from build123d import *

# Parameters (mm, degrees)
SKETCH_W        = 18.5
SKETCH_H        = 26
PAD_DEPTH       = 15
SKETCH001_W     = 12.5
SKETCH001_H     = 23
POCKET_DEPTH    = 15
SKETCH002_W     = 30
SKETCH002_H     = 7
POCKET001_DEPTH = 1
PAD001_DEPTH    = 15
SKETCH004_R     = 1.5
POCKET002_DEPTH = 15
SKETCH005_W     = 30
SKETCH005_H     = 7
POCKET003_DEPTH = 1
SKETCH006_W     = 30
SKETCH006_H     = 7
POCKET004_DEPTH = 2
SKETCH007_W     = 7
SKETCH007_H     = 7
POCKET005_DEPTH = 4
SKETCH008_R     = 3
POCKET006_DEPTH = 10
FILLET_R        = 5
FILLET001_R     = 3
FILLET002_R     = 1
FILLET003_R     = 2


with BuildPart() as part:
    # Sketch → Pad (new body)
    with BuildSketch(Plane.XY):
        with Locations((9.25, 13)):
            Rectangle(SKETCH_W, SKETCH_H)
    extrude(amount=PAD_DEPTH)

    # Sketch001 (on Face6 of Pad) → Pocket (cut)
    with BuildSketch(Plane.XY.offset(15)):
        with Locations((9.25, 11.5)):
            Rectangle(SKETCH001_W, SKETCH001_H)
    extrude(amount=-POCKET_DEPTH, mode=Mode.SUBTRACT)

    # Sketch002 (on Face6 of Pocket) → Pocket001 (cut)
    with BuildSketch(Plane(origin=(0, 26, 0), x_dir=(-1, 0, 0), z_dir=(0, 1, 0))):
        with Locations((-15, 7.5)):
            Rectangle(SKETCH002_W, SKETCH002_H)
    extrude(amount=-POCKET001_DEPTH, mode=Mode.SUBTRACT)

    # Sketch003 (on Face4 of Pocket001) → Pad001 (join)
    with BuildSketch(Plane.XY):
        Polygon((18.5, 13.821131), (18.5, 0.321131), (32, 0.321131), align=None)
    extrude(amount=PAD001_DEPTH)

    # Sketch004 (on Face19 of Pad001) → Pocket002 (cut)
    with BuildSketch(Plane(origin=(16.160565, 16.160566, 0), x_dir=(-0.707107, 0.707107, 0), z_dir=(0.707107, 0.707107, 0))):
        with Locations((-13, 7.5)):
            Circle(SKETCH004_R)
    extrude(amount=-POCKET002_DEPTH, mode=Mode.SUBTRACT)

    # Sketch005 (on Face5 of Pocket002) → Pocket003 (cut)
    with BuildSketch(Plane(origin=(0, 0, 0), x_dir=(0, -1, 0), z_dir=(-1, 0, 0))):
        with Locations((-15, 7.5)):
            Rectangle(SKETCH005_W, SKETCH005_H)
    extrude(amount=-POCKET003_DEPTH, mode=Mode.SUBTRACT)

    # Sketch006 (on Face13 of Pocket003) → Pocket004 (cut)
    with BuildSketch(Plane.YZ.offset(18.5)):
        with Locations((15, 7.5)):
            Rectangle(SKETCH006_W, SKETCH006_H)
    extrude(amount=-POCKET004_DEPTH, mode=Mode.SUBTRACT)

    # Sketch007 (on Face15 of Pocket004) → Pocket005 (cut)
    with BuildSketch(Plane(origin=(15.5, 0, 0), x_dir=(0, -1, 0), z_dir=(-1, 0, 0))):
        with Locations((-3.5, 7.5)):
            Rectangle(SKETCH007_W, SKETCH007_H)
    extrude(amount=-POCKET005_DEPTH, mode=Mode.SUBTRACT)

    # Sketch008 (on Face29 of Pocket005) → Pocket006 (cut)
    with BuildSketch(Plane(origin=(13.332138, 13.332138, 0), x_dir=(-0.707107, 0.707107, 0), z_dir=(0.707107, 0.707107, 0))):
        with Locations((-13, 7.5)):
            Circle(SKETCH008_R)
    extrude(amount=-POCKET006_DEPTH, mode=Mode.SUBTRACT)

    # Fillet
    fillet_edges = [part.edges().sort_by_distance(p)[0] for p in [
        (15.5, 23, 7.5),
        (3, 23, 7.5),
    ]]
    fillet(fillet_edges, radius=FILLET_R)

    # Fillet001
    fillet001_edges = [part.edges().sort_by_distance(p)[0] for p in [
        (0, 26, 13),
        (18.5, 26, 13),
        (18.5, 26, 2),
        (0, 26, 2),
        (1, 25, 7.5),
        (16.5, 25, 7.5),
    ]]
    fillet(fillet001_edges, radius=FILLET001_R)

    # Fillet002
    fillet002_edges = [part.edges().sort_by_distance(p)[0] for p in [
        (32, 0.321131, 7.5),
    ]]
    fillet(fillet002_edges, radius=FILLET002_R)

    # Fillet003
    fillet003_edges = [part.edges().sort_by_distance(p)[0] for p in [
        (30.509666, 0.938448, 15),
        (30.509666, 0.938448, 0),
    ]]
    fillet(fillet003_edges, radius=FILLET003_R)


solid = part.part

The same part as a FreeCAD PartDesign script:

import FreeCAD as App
import Part
import Sketcher
from FreeCAD import Vector


def edges_at(feature, points):
    """Names of the edges that pass closest to the given points."""
    edges = feature.Shape.Edges
    near = lambda p: min(range(len(edges)), key=lambda i: edges[i].distToShape(Part.Vertex(*p))[0])
    return sorted({f"Edge{near(p) + 1}" for p in points})

doc = App.newDocument("Part")
params = doc.addObject("Spreadsheet::Sheet", "Params")
for row, (alias, value) in enumerate([
    ("sketch1_height", "26 mm"),
    ("sketch1_width", "18.5 mm"),
    ("pad1_length", "15 mm"),
    ("sketch2_height", "23 mm"),
    ("sketch2_width", "12.5 mm"),
    ("pocket1_length", "15 mm"),
    ("sketch3_width", "30 mm"),
    ("sketch3_height", "7 mm"),
    ("pocket2_length", "1 mm"),
    ("sketch4_width", "13.5 mm"),
    ("pad2_length", "15 mm"),
    ("sketch5_diameter", "3 mm"),
    ("pocket3_length", "15 mm"),
    ("sketch6_width", "30 mm"),
    ("sketch6_height", "7 mm"),
    ("pocket4_length", "1 mm"),
    ("sketch7_width", "30 mm"),
    ("sketch7_height", "7 mm"),
    ("pocket5_length", "2 mm"),
    ("sketch8_width", "7 mm"),
    ("pocket6_length", "4 mm"),
    ("sketch9_diameter", "6 mm"),
    ("pocket7_length", "10 mm"),
    ("fillet_radius", "5 mm"),
    ("fillet2_radius", "3 mm"),
    ("fillet3_radius", "1 mm"),
    ("fillet4_radius", "2 mm"),
], start=1):
    params.set(f"A{row}", alias)
    params.set(f"B{row}", "=" + value)
    params.setAlias(f"B{row}", alias)

body = doc.addObject("PartDesign::Body", "Body")

sketch1 = doc.addObject("Sketcher::SketchObject", "Sketch")
body.addObject(sketch1)
sketch1.AttachmentSupport = (doc.XY_Plane, [""])
sketch1.MapMode = "FlatFace"
sketch1.addGeometry([
    Part.LineSegment(Vector(0, 26, 0), Vector(0, 0, 0)),
    Part.LineSegment(Vector(0, 0, 0), Vector(18, 0, 0)),
    Part.LineSegment(Vector(18, 0, 0), Vector(18, 26, 0)),
    Part.LineSegment(Vector(18, 26, 0), Vector(0, 26, 0)),
], False)
sketch1.addConstraint([
    Sketcher.Constraint("Coincident", 0, 2, 1, 1),
    Sketcher.Constraint("Coincident", 1, 2, 2, 1),
    Sketcher.Constraint("Coincident", 2, 2, 3, 1),
    Sketcher.Constraint("Coincident", 3, 2, 0, 1),
    Sketcher.Constraint("Vertical", 0),
    Sketcher.Constraint("Horizontal", 1),
    Sketcher.Constraint("Vertical", 2),
    Sketcher.Constraint("Horizontal", 3),
    Sketcher.Constraint("Coincident", 0, 2, -1, 1),
    Sketcher.Constraint("DistanceY", 0, 2, 0, 1, 26.0),
    Sketcher.Constraint("DistanceX", 1, 1, 1, 2, 18.5),
])
sketch1.setExpression("Constraints[9]", "Params.sketch1_height")
sketch1.setExpression("Constraints[10]", "Params.sketch1_width")
pad1 = doc.addObject("PartDesign::Pad", "Pad")
body.addObject(pad1)
pad1.Profile = sketch1
pad1.setExpression("Length", "Params.pad1_length")

sketch2 = doc.addObject("Sketcher::SketchObject", "Sketch001")
body.addObject(sketch2)
sketch2.AttachmentSupport = (doc.XY_Plane, [""])
sketch2.MapMode = "FlatFace"
sketch2.AttachmentOffset = App.Placement(Vector(0, 0, 15), App.Rotation())
sketch2.addGeometry([
    Part.LineSegment(Vector(3, 23, 0), Vector(3, 0, 0)),
    Part.LineSegment(Vector(3, 0, 0), Vector(16, 0, 0)),
    Part.LineSegment(Vector(16, 0, 0), Vector(16, 23, 0)),
    Part.LineSegment(Vector(16, 23, 0), Vector(3, 23, 0)),
], False)
sketch2.addConstraint([
    Sketcher.Constraint("Coincident", 0, 2, 1, 1),
    Sketcher.Constraint("Coincident", 1, 2, 2, 1),
    Sketcher.Constraint("Coincident", 2, 2, 3, 1),
    Sketcher.Constraint("Coincident", 3, 2, 0, 1),
    Sketcher.Constraint("Vertical", 0),
    Sketcher.Constraint("Horizontal", 1),
    Sketcher.Constraint("Vertical", 2),
    Sketcher.Constraint("Horizontal", 3),
    Sketcher.Constraint("PointOnObject", 0, 2, -1),
    Sketcher.Constraint("DistanceY", 0, 2, 0, 1, 23.0),
    Sketcher.Constraint("DistanceX", 1, 1, 1, 2, 12.5),
    Sketcher.Constraint("DistanceX", -1, 1, 0, 2, 3.0),
])
sketch2.setExpression("Constraints[9]", "Params.sketch2_height")
sketch2.setExpression("Constraints[10]", "Params.sketch2_width")
pocket1 = doc.addObject("PartDesign::Pocket", "Pocket")
body.addObject(pocket1)
pocket1.Profile = sketch2
pocket1.setExpression("Length", "Params.pocket1_length")

sketch3 = doc.addObject("Sketcher::SketchObject", "Sketch002")
body.addObject(sketch3)
sketch3.AttachmentSupport = (doc.XZ_Plane, [""])
sketch3.MapMode = "FlatFace"
sketch3.AttachmentOffset = App.Placement(Vector(0, 0, -26), App.Rotation())
sketch3.addGeometry([
    Part.LineSegment(Vector(30, 11, 0), Vector(30, 4, 0)),
    Part.LineSegment(Vector(30, 4, 0), Vector(0, 4, 0)),
    Part.LineSegment(Vector(0, 4, 0), Vector(0, 11, 0)),
    Part.LineSegment(Vector(0, 11, 0), Vector(30, 11, 0)),
], False)
sketch3.addConstraint([
    Sketcher.Constraint("Coincident", 0, 2, 1, 1),
    Sketcher.Constraint("Coincident", 1, 2, 2, 1),
    Sketcher.Constraint("Coincident", 2, 2, 3, 1),
    Sketcher.Constraint("Coincident", 3, 2, 0, 1),
    Sketcher.Constraint("Vertical", 0),
    Sketcher.Constraint("Horizontal", 1),
    Sketcher.Constraint("Vertical", 2),
    Sketcher.Constraint("Horizontal", 3),
    Sketcher.Constraint("PointOnObject", 1, 2, -2),
    Sketcher.Constraint("DistanceX", 1, 2, 1, 1, 30.0),
    Sketcher.Constraint("DistanceY", 0, 2, 0, 1, 7.0),
    Sketcher.Constraint("DistanceY", -1, 1, 0, 2, 4.0),
])
sketch3.setExpression("Constraints[9]", "Params.sketch3_width")
sketch3.setExpression("Constraints[10]", "Params.sketch3_height")
pocket2 = doc.addObject("PartDesign::Pocket", "Pocket001")
body.addObject(pocket2)
pocket2.Profile = sketch3
pocket2.setExpression("Length", "Params.pocket2_length")
pocket2.Reversed = True

sketch4 = doc.addObject("Sketcher::SketchObject", "Sketch003")
body.addObject(sketch4)
sketch4.AttachmentSupport = (doc.XY_Plane, [""])
sketch4.MapMode = "FlatFace"
sketch4.addGeometry([
    Part.LineSegment(Vector(18, 14, 0), Vector(18, 0, 0)),
    Part.LineSegment(Vector(18, 0, 0), Vector(32, 0, 0)),
    Part.LineSegment(Vector(32, 0, 0), Vector(18, 14, 0)),
], False)
sketch4.addConstraint([
    Sketcher.Constraint("Coincident", 0, 2, 1, 1),
    Sketcher.Constraint("Coincident", 1, 2, 2, 1),
    Sketcher.Constraint("Coincident", 2, 2, 0, 1),
    Sketcher.Constraint("Vertical", 0),
    Sketcher.Constraint("Horizontal", 1),
    Sketcher.Constraint("Equal", 1, 0),
    Sketcher.Constraint("DistanceX", 1, 1, 1, 2, 13.5),
    Sketcher.Constraint("DistanceX", -1, 1, 1, 2, 32.0),
    Sketcher.Constraint("DistanceY", -1, 1, 0, 2, 0.321131),
])
sketch4.setExpression("Constraints[6]", "Params.sketch4_width")
pad2 = doc.addObject("PartDesign::Pad", "Pad001")
body.addObject(pad2)
pad2.Profile = sketch4
pad2.setExpression("Length", "Params.pad2_length")

sketch5 = doc.addObject("Sketcher::SketchObject", "Sketch004")
body.addObject(sketch5)
sketch5.Placement = App.Placement(Vector(16.160565, 16.160566, 0), App.Rotation(Vector(-0.707106781, 0.707106781, 0), Vector(0, 0, 0.999999999), Vector(0.707106781, 0.707106781, 0), "ZXY"))
sketch5.addGeometry(Part.Circle(Vector(-13, 7.5, 0), Vector(0, 0, 1), 1.5), False)
sketch5.addConstraint([
    Sketcher.Constraint("Diameter", 0, 3.0),
    Sketcher.Constraint("DistanceX", 0, 3, -1, 1, 13.0),
    Sketcher.Constraint("DistanceY", -1, 1, 0, 3, 7.5),
])
sketch5.setExpression("Constraints[0]", "Params.sketch5_diameter")
pocket3 = doc.addObject("PartDesign::Pocket", "Pocket002")
body.addObject(pocket3)
pocket3.Profile = sketch5
pocket3.setExpression("Length", "Params.pocket3_length")

sketch6 = doc.addObject("Sketcher::SketchObject", "Sketch005")
body.addObject(sketch6)
sketch6.AttachmentSupport = (doc.YZ_Plane, [""])
sketch6.MapMode = "FlatFace"
sketch6.addGeometry([
    Part.LineSegment(Vector(30, 11, 0), Vector(30, 4, 0)),
    Part.LineSegment(Vector(30, 4, 0), Vector(0, 4, 0)),
    Part.LineSegment(Vector(0, 4, 0), Vector(0, 11, 0)),
    Part.LineSegment(Vector(0, 11, 0), Vector(30, 11, 0)),
], False)
sketch6.addConstraint([
    Sketcher.Constraint("Coincident", 0, 2, 1, 1),
    Sketcher.Constraint("Coincident", 1, 2, 2, 1),
    Sketcher.Constraint("Coincident", 2, 2, 3, 1),
    Sketcher.Constraint("Coincident", 3, 2, 0, 1),
    Sketcher.Constraint("Vertical", 0),
    Sketcher.Constraint("Horizontal", 1),
    Sketcher.Constraint("Vertical", 2),
    Sketcher.Constraint("Horizontal", 3),
    Sketcher.Constraint("PointOnObject", 1, 2, -2),
    Sketcher.Constraint("DistanceX", 1, 2, 1, 1, 30.0),
    Sketcher.Constraint("DistanceY", 0, 2, 0, 1, 7.0),
    Sketcher.Constraint("DistanceY", -1, 1, 0, 2, 4.0),
])
sketch6.setExpression("Constraints[9]", "Params.sketch6_width")
sketch6.setExpression("Constraints[10]", "Params.sketch6_height")
pocket4 = doc.addObject("PartDesign::Pocket", "Pocket003")
body.addObject(pocket4)
pocket4.Profile = sketch6
pocket4.setExpression("Length", "Params.pocket4_length")
pocket4.Reversed = True

sketch7 = doc.addObject("Sketcher::SketchObject", "Sketch006")
body.addObject(sketch7)
sketch7.AttachmentSupport = (doc.YZ_Plane, [""])
sketch7.MapMode = "FlatFace"
sketch7.AttachmentOffset = App.Placement(Vector(0, 0, 18.5), App.Rotation())
sketch7.addGeometry([
    Part.LineSegment(Vector(0, 11, 0), Vector(0, 4, 0)),
    Part.LineSegment(Vector(0, 4, 0), Vector(30, 4, 0)),
    Part.LineSegment(Vector(30, 4, 0), Vector(30, 11, 0)),
    Part.LineSegment(Vector(30, 11, 0), Vector(0, 11, 0)),
], False)
sketch7.addConstraint([
    Sketcher.Constraint("Coincident", 0, 2, 1, 1),
    Sketcher.Constraint("Coincident", 1, 2, 2, 1),
    Sketcher.Constraint("Coincident", 2, 2, 3, 1),
    Sketcher.Constraint("Coincident", 3, 2, 0, 1),
    Sketcher.Constraint("Vertical", 0),
    Sketcher.Constraint("Horizontal", 1),
    Sketcher.Constraint("Vertical", 2),
    Sketcher.Constraint("Horizontal", 3),
    Sketcher.Constraint("PointOnObject", 0, 2, -2),
    Sketcher.Constraint("DistanceX", 1, 1, 1, 2, 30.0),
    Sketcher.Constraint("DistanceY", 0, 2, 0, 1, 7.0),
    Sketcher.Constraint("DistanceY", -1, 1, 0, 2, 4.0),
])
sketch7.setExpression("Constraints[9]", "Params.sketch7_width")
sketch7.setExpression("Constraints[10]", "Params.sketch7_height")
pocket5 = doc.addObject("PartDesign::Pocket", "Pocket004")
body.addObject(pocket5)
pocket5.Profile = sketch7
pocket5.setExpression("Length", "Params.pocket5_length")

sketch8 = doc.addObject("Sketcher::SketchObject", "Sketch007")
body.addObject(sketch8)
sketch8.AttachmentSupport = (doc.YZ_Plane, [""])
sketch8.MapMode = "FlatFace"
sketch8.AttachmentOffset = App.Placement(Vector(0, 0, 15.5), App.Rotation())
sketch8.addGeometry([
    Part.LineSegment(Vector(7, 11, 0), Vector(7, 4, 0)),
    Part.LineSegment(Vector(7, 4, 0), Vector(0, 4, 0)),
    Part.LineSegment(Vector(0, 4, 0), Vector(0, 11, 0)),
    Part.LineSegment(Vector(0, 11, 0), Vector(7, 11, 0)),
], False)
sketch8.addConstraint([
    Sketcher.Constraint("Coincident", 0, 2, 1, 1),
    Sketcher.Constraint("Coincident", 1, 2, 2, 1),
    Sketcher.Constraint("Coincident", 2, 2, 3, 1),
    Sketcher.Constraint("Coincident", 3, 2, 0, 1),
    Sketcher.Constraint("Vertical", 0),
    Sketcher.Constraint("Horizontal", 1),
    Sketcher.Constraint("Vertical", 2),
    Sketcher.Constraint("Horizontal", 3),
    Sketcher.Constraint("PointOnObject", 1, 2, -2),
    Sketcher.Constraint("Equal", 3, 0),
    Sketcher.Constraint("DistanceX", 1, 2, 1, 1, 7.0),
    Sketcher.Constraint("DistanceY", -1, 1, 0, 2, 4.0),
])
sketch8.setExpression("Constraints[10]", "Params.sketch8_width")
pocket6 = doc.addObject("PartDesign::Pocket", "Pocket005")
body.addObject(pocket6)
pocket6.Profile = sketch8
pocket6.setExpression("Length", "Params.pocket6_length")
pocket6.Reversed = True

sketch9 = doc.addObject("Sketcher::SketchObject", "Sketch008")
body.addObject(sketch9)
sketch9.Placement = App.Placement(Vector(13.332138, 13.332138, 0), App.Rotation(Vector(-0.707106781, 0.707106781, 0), Vector(0, 0, 0.999999999), Vector(0.707106781, 0.707106781, 0), "ZXY"))
sketch9.addGeometry(Part.Circle(Vector(-13, 7.5, 0), Vector(0, 0, 1), 3), False)
sketch9.addConstraint([
    Sketcher.Constraint("Diameter", 0, 6.0),
    Sketcher.Constraint("DistanceX", 0, 3, -1, 1, 13.0),
    Sketcher.Constraint("DistanceY", -1, 1, 0, 3, 7.5),
])
sketch9.setExpression("Constraints[0]", "Params.sketch9_diameter")
pocket7 = doc.addObject("PartDesign::Pocket", "Pocket006")
body.addObject(pocket7)
pocket7.Profile = sketch9
pocket7.setExpression("Length", "Params.pocket7_length")
doc.recompute()

fillet = doc.addObject("PartDesign::Fillet", "Fillet")
body.addObject(fillet)
fillet.Base = (pocket7, edges_at(pocket7, [(15.5, 23, 7.5), (3, 23, 7.5)]))
fillet.setExpression("Radius", "Params.fillet_radius")
doc.recompute()

fillet2 = doc.addObject("PartDesign::Fillet", "Fillet001")
body.addObject(fillet2)
fillet2.Base = (fillet, edges_at(fillet, [
    (0, 26, 13),
    (18.5, 26, 13),
    (18.5, 26, 2),
    (0, 26, 2),
    (1, 25, 7.5),
    (16.5, 25, 7.5),
]))
fillet2.setExpression("Radius", "Params.fillet2_radius")
doc.recompute()

fillet3 = doc.addObject("PartDesign::Fillet", "Fillet002")
body.addObject(fillet3)
fillet3.Base = (fillet2, edges_at(fillet2, [(32, 0.321, 7.5)]))
fillet3.setExpression("Radius", "Params.fillet3_radius")
doc.recompute()

fillet4 = doc.addObject("PartDesign::Fillet", "Fillet003")
body.addObject(fillet4)
fillet4.Base = (fillet3, edges_at(fillet3, [(30.51, 0.938, 15), (30.51, 0.938, 0)]))
fillet4.setExpression("Radius", "Params.fillet4_radius")

doc.recompute()
